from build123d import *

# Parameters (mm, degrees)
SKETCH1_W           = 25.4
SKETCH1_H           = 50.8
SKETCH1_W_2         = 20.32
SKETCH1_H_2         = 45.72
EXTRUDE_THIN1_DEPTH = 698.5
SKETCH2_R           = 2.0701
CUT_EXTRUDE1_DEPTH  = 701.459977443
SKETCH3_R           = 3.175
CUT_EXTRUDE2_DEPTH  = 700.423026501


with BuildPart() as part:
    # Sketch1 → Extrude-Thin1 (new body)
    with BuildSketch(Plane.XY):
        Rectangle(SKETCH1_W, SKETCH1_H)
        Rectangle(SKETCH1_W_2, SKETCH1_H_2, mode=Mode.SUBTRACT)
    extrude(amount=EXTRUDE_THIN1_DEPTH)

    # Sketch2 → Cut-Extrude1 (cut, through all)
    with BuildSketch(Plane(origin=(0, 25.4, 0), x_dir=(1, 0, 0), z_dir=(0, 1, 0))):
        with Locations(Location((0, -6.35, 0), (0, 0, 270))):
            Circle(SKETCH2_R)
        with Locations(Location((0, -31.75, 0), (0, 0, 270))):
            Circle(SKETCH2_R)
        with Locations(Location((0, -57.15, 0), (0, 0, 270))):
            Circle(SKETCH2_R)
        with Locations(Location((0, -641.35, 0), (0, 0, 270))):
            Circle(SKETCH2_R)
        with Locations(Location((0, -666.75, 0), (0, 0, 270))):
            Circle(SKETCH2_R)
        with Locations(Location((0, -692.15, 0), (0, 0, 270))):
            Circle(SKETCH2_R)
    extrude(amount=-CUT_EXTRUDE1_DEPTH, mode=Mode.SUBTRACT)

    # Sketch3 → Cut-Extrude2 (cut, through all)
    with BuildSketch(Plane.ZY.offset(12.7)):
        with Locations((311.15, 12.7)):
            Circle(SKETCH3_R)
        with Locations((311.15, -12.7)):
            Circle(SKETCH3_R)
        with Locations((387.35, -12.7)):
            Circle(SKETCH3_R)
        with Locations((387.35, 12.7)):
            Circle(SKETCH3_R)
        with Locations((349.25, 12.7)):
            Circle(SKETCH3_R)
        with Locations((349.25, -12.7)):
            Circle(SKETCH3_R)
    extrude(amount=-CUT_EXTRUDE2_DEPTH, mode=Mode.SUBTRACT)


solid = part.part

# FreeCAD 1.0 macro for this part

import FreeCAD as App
import Part
import Sketcher
from FreeCAD import Vector
Q = App.Units.Quantity


def add_polygon(sketch, points):
    """Adds a closed chain of lines whose ends are joined by coincident constraints."""
    first, n = sketch.GeometryCount, len(points)
    for a, b in zip(points, points[1:] + points[:1]):
        sketch.addGeometry(Part.LineSegment(App.Vector(*a, 0), App.Vector(*b, 0)), False)
    for i in range(n):
        sketch.addConstraint(Sketcher.Constraint("Coincident", first + i, 2, first + (i + 1) % n, 1))

doc = App.newDocument("Part")
body = doc.addObject("PartDesign::Body", "Body")

# Sketch on XY plane
sketch1 = body.newObject("Sketcher::SketchObject", "Sketch")
sketch1.AttachmentSupport = (doc.getObject("XY_Plane"), [""])
sketch1.MapMode = "FlatFace"
add_polygon(sketch1, [(-13, 25), (-13, -25), (13, -25), (13, 25)])  # lines 0-3
add_polygon(sketch1, [(10, -23), (-10, -23), (-10, 23), (10, 23)])  # lines 4-7
sketch1.addConstraint(Sketcher.Constraint("Vertical", 0))
sketch1.addConstraint(Sketcher.Constraint("Horizontal", 1))
sketch1.addConstraint(Sketcher.Constraint("Vertical", 2))
sketch1.addConstraint(Sketcher.Constraint("Horizontal", 3))
sketch1.addConstraint(Sketcher.Constraint("Horizontal", 4))
sketch1.addConstraint(Sketcher.Constraint("Vertical", 5))
sketch1.addConstraint(Sketcher.Constraint("Horizontal", 6))
sketch1.addConstraint(Sketcher.Constraint("Vertical", 7))
sketch1.addConstraint(Sketcher.Constraint("Symmetric", 0, 2, 2, 2, -1, 1))
sketch1.addConstraint(Sketcher.Constraint("Symmetric", 4, 2, 6, 2, -1, 1))
sketch1.addConstraint(Sketcher.Constraint("DistanceX", 1, 1, 1, 2, Q("1 in")))
sketch1.addConstraint(Sketcher.Constraint("DistanceY", 0, 2, 0, 1, Q("2 in")))
sketch1.addConstraint(Sketcher.Constraint("DistanceX", 4, 2, 4, 1, Q("0.8 in")))
sketch1.addConstraint(Sketcher.Constraint("DistanceY", 5, 1, 5, 2, Q("1.8 in")))
pad1 = body.newObject("PartDesign::Pad", "Pad")
pad1.Profile = sketch1
pad1.Length = Q("27.5 in")

# Sketch on XZ plane
sketch2 = body.newObject("Sketcher::SketchObject", "Sketch001")
sketch2.AttachmentSupport = (doc.getObject("XZ_Plane"), [""])
sketch2.MapMode = "FlatFace"
sketch2.AttachmentOffset = App.Placement(Vector(0, 0, -1 * 25.4), App.Rotation())
sketch2.addGeometry(Part.Circle(Vector(0, 6.3, 0), Vector(0, 0, 1), 2.1), False)
sketch2.addGeometry(Part.Circle(Vector(0, 31.8, 0), Vector(0, 0, 1), 2.1), False)
sketch2.addGeometry(Part.Circle(Vector(0, 57.1, 0), Vector(0, 0, 1), 2.1), False)
sketch2.addGeometry(Part.Circle(Vector(0, 641.4, 0), Vector(0, 0, 1), 2.1), False)
sketch2.addGeometry(Part.Circle(Vector(0, 666.8, 0), Vector(0, 0, 1), 2.1), False)
sketch2.addGeometry(Part.Circle(Vector(0, 692.1, 0), Vector(0, 0, 1), 2.1), False)
sketch2.addConstraint(Sketcher.Constraint("Equal", 0, 1))
sketch2.addConstraint(Sketcher.Constraint("Equal", 1, 2))
sketch2.addConstraint(Sketcher.Constraint("Equal", 2, 3))
sketch2.addConstraint(Sketcher.Constraint("Equal", 3, 4))
sketch2.addConstraint(Sketcher.Constraint("Equal", 4, 5))
sketch2.addConstraint(Sketcher.Constraint("PointOnObject", 0, 3, -2))
sketch2.addConstraint(Sketcher.Constraint("PointOnObject", 1, 3, -2))
sketch2.addConstraint(Sketcher.Constraint("PointOnObject", 2, 3, -2))
sketch2.addConstraint(Sketcher.Constraint("PointOnObject", 3, 3, -2))
sketch2.addConstraint(Sketcher.Constraint("PointOnObject", 4, 3, -2))
sketch2.addConstraint(Sketcher.Constraint("PointOnObject", 5, 3, -2))
sketch2.addConstraint(Sketcher.Constraint("Diameter", 0, Q("0.163 in")))
sketch2.addConstraint(Sketcher.Constraint("DistanceY", 0, 3, 1, 3, Q("1 in")))
sketch2.addConstraint(Sketcher.Constraint("DistanceY", 1, 3, 2, 3, Q("1 in")))
sketch2.addConstraint(Sketcher.Constraint("DistanceY", 2, 3, 3, 3, Q("23 in")))
sketch2.addConstraint(Sketcher.Constraint("DistanceY", 3, 3, 4, 3, Q("1 in")))
sketch2.addConstraint(Sketcher.Constraint("DistanceY", 4, 3, 5, 3, Q("1 in")))
sketch2.addConstraint(Sketcher.Constraint("DistanceY", -1, 1, 0, 3, Q("0.25 in")))
pocket1 = body.newObject("PartDesign::Pocket", "Pocket")
pocket1.Profile = sketch2
pocket1.Type = "ThroughAll"
pocket1.Reversed = True

# Sketch on YZ plane
sketch3 = body.newObject("Sketcher::SketchObject", "Sketch002")
sketch3.AttachmentSupport = (doc.getObject("YZ_Plane"), [""])
sketch3.MapMode = "FlatFace"
sketch3.AttachmentOffset = App.Placement(Vector(0, 0, -0.5 * 25.4), App.Rotation())
sketch3.addGeometry(Part.Circle(Vector(12.7, 311.1, 0), Vector(0, 0, 1), 3.2), False)
sketch3.addGeometry(Part.Circle(Vector(-12.7, 311.1, 0), Vector(0, 0, 1), 3.2), False)
sketch3.addGeometry(Part.Circle(Vector(-12.7, 387.4, 0), Vector(0, 0, 1), 3.2), False)
sketch3.addGeometry(Part.Circle(Vector(12.7, 387.4, 0), Vector(0, 0, 1), 3.2), False)
sketch3.addGeometry(Part.Circle(Vector(12.7, 349.2, 0), Vector(0, 0, 1), 3.2), False)
sketch3.addGeometry(Part.Circle(Vector(-12.7, 349.2, 0), Vector(0, 0, 1), 3.2), False)
sketch3.addConstraint(Sketcher.Constraint("Equal", 0, 1))
sketch3.addConstraint(Sketcher.Constraint("Equal", 1, 2))
sketch3.addConstraint(Sketcher.Constraint("Equal", 2, 3))
sketch3.addConstraint(Sketcher.Constraint("Equal", 3, 4))
sketch3.addConstraint(Sketcher.Constraint("Equal", 4, 5))
sketch3.addConstraint(Sketcher.Constraint("Symmetric", 0, 3, 1, 3, -2))
sketch3.addConstraint(Sketcher.Constraint("Symmetric", 2, 3, 3, 3, -2))
sketch3.addConstraint(Sketcher.Constraint("Symmetric", 4, 3, 5, 3, -2))
sketch3.addConstraint(Sketcher.Constraint("Vertical", 1, 3, 2, 3))
sketch3.addConstraint(Sketcher.Constraint("Vertical", 3, 3, 4, 3))
sketch3.addConstraint(Sketcher.Constraint("Diameter", 0, Q("0.25 in")))
sketch3.addConstraint(Sketcher.Constraint("DistanceX", 1, 3, 0, 3, Q("1 in")))
sketch3.addConstraint(Sketcher.Constraint("DistanceY", 1, 3, 2, 3, Q("3 in")))
sketch3.addConstraint(Sketcher.Constraint("DistanceY", 0, 3, 4, 3, Q("1.5 in")))
sketch3.addConstraint(Sketcher.Constraint("DistanceY", -1, 1, 0, 3, Q("12.25 in")))
pocket2 = body.newObject("PartDesign::Pocket", "Pocket001")
pocket2.Profile = sketch3
pocket2.Type = "ThroughAll"
pocket2.Reversed = True

doc.recompute()
